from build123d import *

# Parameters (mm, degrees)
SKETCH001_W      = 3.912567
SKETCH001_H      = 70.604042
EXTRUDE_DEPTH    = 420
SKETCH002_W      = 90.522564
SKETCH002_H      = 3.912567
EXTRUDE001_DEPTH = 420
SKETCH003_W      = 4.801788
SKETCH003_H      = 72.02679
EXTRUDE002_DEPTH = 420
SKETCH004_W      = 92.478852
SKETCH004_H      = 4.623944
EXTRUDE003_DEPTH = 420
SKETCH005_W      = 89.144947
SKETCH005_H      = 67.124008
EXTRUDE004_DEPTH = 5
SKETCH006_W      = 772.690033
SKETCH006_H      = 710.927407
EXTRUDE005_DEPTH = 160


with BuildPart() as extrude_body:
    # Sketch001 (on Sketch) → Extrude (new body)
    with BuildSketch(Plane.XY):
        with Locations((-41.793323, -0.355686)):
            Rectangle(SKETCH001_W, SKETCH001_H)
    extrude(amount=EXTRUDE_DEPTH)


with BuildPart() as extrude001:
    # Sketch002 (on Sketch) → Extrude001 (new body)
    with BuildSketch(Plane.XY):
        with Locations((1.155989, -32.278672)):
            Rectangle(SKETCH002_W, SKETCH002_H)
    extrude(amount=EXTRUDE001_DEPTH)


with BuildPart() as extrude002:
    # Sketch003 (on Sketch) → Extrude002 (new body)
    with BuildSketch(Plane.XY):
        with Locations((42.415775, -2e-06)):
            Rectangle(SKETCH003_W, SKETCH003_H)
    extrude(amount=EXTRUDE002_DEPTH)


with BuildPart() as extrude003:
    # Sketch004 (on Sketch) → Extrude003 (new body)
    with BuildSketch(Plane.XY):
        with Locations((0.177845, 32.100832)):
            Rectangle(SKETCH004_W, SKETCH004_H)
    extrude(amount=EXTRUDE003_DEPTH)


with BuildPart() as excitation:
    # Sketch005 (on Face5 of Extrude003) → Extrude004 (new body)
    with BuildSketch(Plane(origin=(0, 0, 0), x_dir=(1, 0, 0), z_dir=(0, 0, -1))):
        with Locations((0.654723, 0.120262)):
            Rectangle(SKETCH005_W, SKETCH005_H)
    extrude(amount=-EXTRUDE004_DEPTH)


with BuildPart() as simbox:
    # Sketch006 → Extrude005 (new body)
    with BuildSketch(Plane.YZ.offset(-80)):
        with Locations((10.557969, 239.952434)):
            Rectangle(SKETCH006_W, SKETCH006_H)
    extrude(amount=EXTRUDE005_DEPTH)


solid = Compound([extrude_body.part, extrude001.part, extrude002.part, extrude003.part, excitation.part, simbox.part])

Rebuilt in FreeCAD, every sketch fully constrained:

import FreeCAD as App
import Part
import Sketcher
Q = App.Units.Quantity

doc = App.newDocument("Part")
params = doc.addObject("Spreadsheet::Sheet", "Params")
for row, (alias, value) in enumerate([
    ("pad1_length", "420 mm"),
    ("pad2_length", "420 mm"),
    ("pad3_length", "420 mm"),
    ("pad4_length", "420 mm"),
    ("pad5_length", "5 mm"),
    ("pad6_length", "160 mm"),
], start=1):
    params.set(f"A{row}", alias)
    params.set(f"B{row}", "=" + value)
    params.setAlias(f"B{row}", alias)

body = doc.addObject("PartDesign::Body", "Body")

sketch1 = body.newObject("Sketcher::SketchObject", "Sketch")
sketch1.AttachmentSupport = (doc.getObject("XY_Plane"), [""])
sketch1.MapMode = "FlatFace"
sketch1.addGeometry([
    Part.LineSegment(App.Vector(-43.749606, 34.946335, 0), App.Vector(-43.749606, -35.657707, 0)),
    Part.LineSegment(App.Vector(-43.749606, -35.657707, 0), App.Vector(-39.83704, -35.657707, 0)),
    Part.LineSegment(App.Vector(-39.83704, -35.657707, 0), App.Vector(-39.83704, 34.946335, 0)),
    Part.LineSegment(App.Vector(-39.83704, 34.946335, 0), App.Vector(-43.749606, 34.946335, 0)),
], False)
sketch1.addConstraint([
    Sketcher.Constraint("Coincident", 0, 2, 1, 1),
    Sketcher.Constraint("Coincident", 1, 2, 2, 1),
    Sketcher.Constraint("Coincident", 2, 2, 3, 1),
    Sketcher.Constraint("Coincident", 3, 2, 0, 1),
    Sketcher.Constraint("Vertical", 0),
    Sketcher.Constraint("Horizontal", 1),
    Sketcher.Constraint("Vertical", 2),
    Sketcher.Constraint("Horizontal", 3),
    Sketcher.Constraint("DistanceY", 0, 2, 0, 1, Q("70.604042 mm")),
    Sketcher.Constraint("DistanceX", 1, 1, 1, 2, Q("3.912567 mm")),
    Sketcher.Constraint("DistanceX", 1, 2, -1, 1, Q("39.83704 mm")),
    Sketcher.Constraint("DistanceY", 0, 2, -1, 1, Q("35.657707 mm")),
])
pad1 = body.newObject("PartDesign::Pad", "Pad")
pad1.Profile = sketch1
pad1.setExpression("Length", "Params.pad1_length")
body2 = doc.addObject("PartDesign::Body", "Body001")

sketch2 = body2.newObject("Sketcher::SketchObject", "Sketch001")
sketch2.AttachmentSupport = (doc.getObject("XY_Plane001"), [""])
sketch2.MapMode = "FlatFace"
sketch2.addGeometry([
    Part.LineSegment(App.Vector(-44.105293, -30.322388, 0), App.Vector(-44.105293, -34.234955, 0)),
    Part.LineSegment(App.Vector(-44.105293, -34.234955, 0), App.Vector(46.417271, -34.234955, 0)),
    Part.LineSegment(App.Vector(46.417271, -34.234955, 0), App.Vector(46.417271, -30.322388, 0)),
    Part.LineSegment(App.Vector(46.417271, -30.322388, 0), App.Vector(-44.105293, -30.322388, 0)),
], False)
sketch2.addConstraint([
    Sketcher.Constraint("Coincident", 0, 2, 1, 1),
    Sketcher.Constraint("Coincident", 1, 2, 2, 1),
    Sketcher.Constraint("Coincident", 2, 2, 3, 1),
    Sketcher.Constraint("Coincident", 3, 2, 0, 1),
    Sketcher.Constraint("Vertical", 0),
    Sketcher.Constraint("Horizontal", 1),
    Sketcher.Constraint("Vertical", 2),
    Sketcher.Constraint("Horizontal", 3),
    Sketcher.Constraint("DistanceX", 1, 1, 1, 2, Q("90.522564 mm")),
    Sketcher.Constraint("DistanceY", 0, 2, 0, 1, Q("3.912567 mm")),
    Sketcher.Constraint("DistanceX", -1, 1, 1, 2, Q("46.417271 mm")),
    Sketcher.Constraint("DistanceY", 2, 2, -1, 1, Q("30.322388 mm")),
])
pad2 = body2.newObject("PartDesign::Pad", "Pad001")
pad2.Profile = sketch2
pad2.setExpression("Length", "Params.pad2_length")
body3 = doc.addObject("PartDesign::Body", "Body002")

sketch3 = body3.newObject("Sketcher::SketchObject", "Sketch002")
sketch3.AttachmentSupport = (doc.getObject("XY_Plane002"), [""])
sketch3.MapMode = "FlatFace"
sketch3.addGeometry([
    Part.LineSegment(App.Vector(40.014881, 36.013393, 0), App.Vector(40.014881, -36.013397, 0)),
    Part.LineSegment(App.Vector(40.014881, -36.013397, 0), App.Vector(44.816669, -36.013397, 0)),
    Part.LineSegment(App.Vector(44.816669, -36.013397, 0), App.Vector(44.816669, 36.013393, 0)),
    Part.LineSegment(App.Vector(44.816669, 36.013393, 0), App.Vector(40.014881, 36.013393, 0)),
], False)
sketch3.addConstraint([
    Sketcher.Constraint("Coincident", 0, 2, 1, 1),
    Sketcher.Constraint("Coincident", 1, 2, 2, 1),
    Sketcher.Constraint("Coincident", 2, 2, 3, 1),
    Sketcher.Constraint("Coincident", 3, 2, 0, 1),
    Sketcher.Constraint("Vertical", 0),
    Sketcher.Constraint("Horizontal", 1),
    Sketcher.Constraint("Vertical", 2),
    Sketcher.Constraint("Horizontal", 3),
    Sketcher.Constraint("DistanceY", 0, 2, 0, 1, Q("72.02679 mm")),
    Sketcher.Constraint("DistanceX", 1, 1, 1, 2, Q("4.801788 mm")),
    Sketcher.Constraint("DistanceX", -1, 1, 0, 2, Q("40.014881 mm")),
    Sketcher.Constraint("DistanceY", 0, 2, -1, 1, Q("36.013397 mm")),
])
pad3 = body3.newObject("PartDesign::Pad", "Pad002")
pad3.Profile = sketch3
pad3.setExpression("Length", "Params.pad3_length")
body4 = doc.addObject("PartDesign::Body", "Body003")

sketch4 = body4.newObject("Sketcher::SketchObject", "Sketch003")
sketch4.AttachmentSupport = (doc.getObject("XY_Plane003"), [""])
sketch4.MapMode = "FlatFace"
sketch4.addGeometry([
    Part.LineSegment(App.Vector(-46.061581, 34.412804, 0), App.Vector(-46.061581, 29.78886, 0)),
    Part.LineSegment(App.Vector(-46.061581, 29.78886, 0), App.Vector(46.417271, 29.78886, 0)),
    Part.LineSegment(App.Vector(46.417271, 29.78886, 0), App.Vector(46.417271, 34.412804, 0)),
    Part.LineSegment(App.Vector(46.417271, 34.412804, 0), App.Vector(-46.061581, 34.412804, 0)),
], False)
sketch4.addConstraint([
    Sketcher.Constraint("Coincident", 0, 2, 1, 1),
    Sketcher.Constraint("Coincident", 1, 2, 2, 1),
    Sketcher.Constraint("Coincident", 2, 2, 3, 1),
    Sketcher.Constraint("Coincident", 3, 2, 0, 1),
    Sketcher.Constraint("Vertical", 0),
    Sketcher.Constraint("Horizontal", 1),
    Sketcher.Constraint("Vertical", 2),
    Sketcher.Constraint("Horizontal", 3),
    Sketcher.Constraint("DistanceX", 1, 1, 1, 2, Q("92.478852 mm")),
    Sketcher.Constraint("DistanceY", 0, 2, 0, 1, Q("4.623944 mm")),
    Sketcher.Constraint("DistanceX", 0, 2, -1, 1, Q("46.061581 mm")),
    Sketcher.Constraint("DistanceY", -1, 1, 0, 2, Q("29.78886 mm")),
])
pad4 = body4.newObject("PartDesign::Pad", "Pad003")
pad4.Profile = sketch4
pad4.setExpression("Length", "Params.pad4_length")
body5 = doc.addObject("PartDesign::Body", "Body004")

sketch5 = body5.newObject("Sketcher::SketchObject", "Sketch004")
sketch5.AttachmentSupport = (doc.getObject("XY_Plane004"), [""])
sketch5.MapMode = "FlatFace"
sketch5.addGeometry([
    Part.LineSegment(App.Vector(-43.91775, -33.682266, 0), App.Vector(-43.91775, 33.441742, 0)),
    Part.LineSegment(App.Vector(-43.91775, 33.441742, 0), App.Vector(45.227196, 33.441742, 0)),
    Part.LineSegment(App.Vector(45.227196, 33.441742, 0), App.Vector(45.227196, -33.682266, 0)),
    Part.LineSegment(App.Vector(45.227196, -33.682266, 0), App.Vector(-43.91775, -33.682266, 0)),
], False)
sketch5.addConstraint([
    Sketcher.Constraint("Coincident", 0, 2, 1, 1),
    Sketcher.Constraint("Coincident", 1, 2, 2, 1),
    Sketcher.Constraint("Coincident", 2, 2, 3, 1),
    Sketcher.Constraint("Coincident", 3, 2, 0, 1),
    Sketcher.Constraint("Vertical", 0),
    Sketcher.Constraint("Horizontal", 1),
    Sketcher.Constraint("Vertical", 2),
    Sketcher.Constraint("Horizontal", 3),
    Sketcher.Constraint("DistanceY", 0, 1, 0, 2, Q("67.124008 mm")),
    Sketcher.Constraint("DistanceX", 1, 1, 1, 2, Q("89.144947 mm")),
    Sketcher.Constraint("DistanceX", 0, 2, -1, 1, Q("43.91775 mm")),
    Sketcher.Constraint("DistanceY", -1, 1, 0, 2, Q("33.441742 mm")),
])
pad5 = body5.newObject("PartDesign::Pad", "Pad004")
pad5.Profile = sketch5
pad5.setExpression("Length", "Params.pad5_length")
body6 = doc.addObject("PartDesign::Body", "Body005")

sketch6 = body6.newObject("Sketcher::SketchObject", "Sketch005")
sketch6.AttachmentSupport = (doc.getObject("YZ_Plane005"), [""])
sketch6.MapMode = "FlatFace"
sketch6.AttachmentOffset = App.Placement(App.Vector(0, 0, -80), App.Rotation())
sketch6.addGeometry([
    Part.LineSegment(App.Vector(-375.787048, 595.416137, 0), App.Vector(-375.787048, -115.511269, 0)),
    Part.LineSegment(App.Vector(-375.787048, -115.511269, 0), App.Vector(396.902985, -115.511269, 0)),
    Part.LineSegment(App.Vector(396.902985, -115.511269, 0), App.Vector(396.902985, 595.416137, 0)),
    Part.LineSegment(App.Vector(396.902985, 595.416137, 0), App.Vector(-375.787048, 595.416137, 0)),
], False)
sketch6.addConstraint([
    Sketcher.Constraint("Coincident", 0, 2, 1, 1),
    Sketcher.Constraint("Coincident", 1, 2, 2, 1),
    Sketcher.Constraint("Coincident", 2, 2, 3, 1),
    Sketcher.Constraint("Coincident", 3, 2, 0, 1),
    Sketcher.Constraint("Vertical", 0),
    Sketcher.Constraint("Horizontal", 1),
    Sketcher.Constraint("Vertical", 2),
    Sketcher.Constraint("Horizontal", 3),
    Sketcher.Constraint("DistanceX", 1, 1, 1, 2, Q("772.690033 mm")),
    Sketcher.Constraint("DistanceY", 0, 2, 0, 1, Q("710.927407 mm")),
    Sketcher.Constraint("DistanceY", 0, 2, -1, 1, Q("115.511269 mm")),
    Sketcher.Constraint("DistanceX", 0, 2, -1, 1, Q("375.787048 mm")),
])
pad6 = body6.newObject("PartDesign::Pad", "Pad005")
pad6.Profile = sketch6
pad6.setExpression("Length", "Params.pad6_length")

doc.recompute()
